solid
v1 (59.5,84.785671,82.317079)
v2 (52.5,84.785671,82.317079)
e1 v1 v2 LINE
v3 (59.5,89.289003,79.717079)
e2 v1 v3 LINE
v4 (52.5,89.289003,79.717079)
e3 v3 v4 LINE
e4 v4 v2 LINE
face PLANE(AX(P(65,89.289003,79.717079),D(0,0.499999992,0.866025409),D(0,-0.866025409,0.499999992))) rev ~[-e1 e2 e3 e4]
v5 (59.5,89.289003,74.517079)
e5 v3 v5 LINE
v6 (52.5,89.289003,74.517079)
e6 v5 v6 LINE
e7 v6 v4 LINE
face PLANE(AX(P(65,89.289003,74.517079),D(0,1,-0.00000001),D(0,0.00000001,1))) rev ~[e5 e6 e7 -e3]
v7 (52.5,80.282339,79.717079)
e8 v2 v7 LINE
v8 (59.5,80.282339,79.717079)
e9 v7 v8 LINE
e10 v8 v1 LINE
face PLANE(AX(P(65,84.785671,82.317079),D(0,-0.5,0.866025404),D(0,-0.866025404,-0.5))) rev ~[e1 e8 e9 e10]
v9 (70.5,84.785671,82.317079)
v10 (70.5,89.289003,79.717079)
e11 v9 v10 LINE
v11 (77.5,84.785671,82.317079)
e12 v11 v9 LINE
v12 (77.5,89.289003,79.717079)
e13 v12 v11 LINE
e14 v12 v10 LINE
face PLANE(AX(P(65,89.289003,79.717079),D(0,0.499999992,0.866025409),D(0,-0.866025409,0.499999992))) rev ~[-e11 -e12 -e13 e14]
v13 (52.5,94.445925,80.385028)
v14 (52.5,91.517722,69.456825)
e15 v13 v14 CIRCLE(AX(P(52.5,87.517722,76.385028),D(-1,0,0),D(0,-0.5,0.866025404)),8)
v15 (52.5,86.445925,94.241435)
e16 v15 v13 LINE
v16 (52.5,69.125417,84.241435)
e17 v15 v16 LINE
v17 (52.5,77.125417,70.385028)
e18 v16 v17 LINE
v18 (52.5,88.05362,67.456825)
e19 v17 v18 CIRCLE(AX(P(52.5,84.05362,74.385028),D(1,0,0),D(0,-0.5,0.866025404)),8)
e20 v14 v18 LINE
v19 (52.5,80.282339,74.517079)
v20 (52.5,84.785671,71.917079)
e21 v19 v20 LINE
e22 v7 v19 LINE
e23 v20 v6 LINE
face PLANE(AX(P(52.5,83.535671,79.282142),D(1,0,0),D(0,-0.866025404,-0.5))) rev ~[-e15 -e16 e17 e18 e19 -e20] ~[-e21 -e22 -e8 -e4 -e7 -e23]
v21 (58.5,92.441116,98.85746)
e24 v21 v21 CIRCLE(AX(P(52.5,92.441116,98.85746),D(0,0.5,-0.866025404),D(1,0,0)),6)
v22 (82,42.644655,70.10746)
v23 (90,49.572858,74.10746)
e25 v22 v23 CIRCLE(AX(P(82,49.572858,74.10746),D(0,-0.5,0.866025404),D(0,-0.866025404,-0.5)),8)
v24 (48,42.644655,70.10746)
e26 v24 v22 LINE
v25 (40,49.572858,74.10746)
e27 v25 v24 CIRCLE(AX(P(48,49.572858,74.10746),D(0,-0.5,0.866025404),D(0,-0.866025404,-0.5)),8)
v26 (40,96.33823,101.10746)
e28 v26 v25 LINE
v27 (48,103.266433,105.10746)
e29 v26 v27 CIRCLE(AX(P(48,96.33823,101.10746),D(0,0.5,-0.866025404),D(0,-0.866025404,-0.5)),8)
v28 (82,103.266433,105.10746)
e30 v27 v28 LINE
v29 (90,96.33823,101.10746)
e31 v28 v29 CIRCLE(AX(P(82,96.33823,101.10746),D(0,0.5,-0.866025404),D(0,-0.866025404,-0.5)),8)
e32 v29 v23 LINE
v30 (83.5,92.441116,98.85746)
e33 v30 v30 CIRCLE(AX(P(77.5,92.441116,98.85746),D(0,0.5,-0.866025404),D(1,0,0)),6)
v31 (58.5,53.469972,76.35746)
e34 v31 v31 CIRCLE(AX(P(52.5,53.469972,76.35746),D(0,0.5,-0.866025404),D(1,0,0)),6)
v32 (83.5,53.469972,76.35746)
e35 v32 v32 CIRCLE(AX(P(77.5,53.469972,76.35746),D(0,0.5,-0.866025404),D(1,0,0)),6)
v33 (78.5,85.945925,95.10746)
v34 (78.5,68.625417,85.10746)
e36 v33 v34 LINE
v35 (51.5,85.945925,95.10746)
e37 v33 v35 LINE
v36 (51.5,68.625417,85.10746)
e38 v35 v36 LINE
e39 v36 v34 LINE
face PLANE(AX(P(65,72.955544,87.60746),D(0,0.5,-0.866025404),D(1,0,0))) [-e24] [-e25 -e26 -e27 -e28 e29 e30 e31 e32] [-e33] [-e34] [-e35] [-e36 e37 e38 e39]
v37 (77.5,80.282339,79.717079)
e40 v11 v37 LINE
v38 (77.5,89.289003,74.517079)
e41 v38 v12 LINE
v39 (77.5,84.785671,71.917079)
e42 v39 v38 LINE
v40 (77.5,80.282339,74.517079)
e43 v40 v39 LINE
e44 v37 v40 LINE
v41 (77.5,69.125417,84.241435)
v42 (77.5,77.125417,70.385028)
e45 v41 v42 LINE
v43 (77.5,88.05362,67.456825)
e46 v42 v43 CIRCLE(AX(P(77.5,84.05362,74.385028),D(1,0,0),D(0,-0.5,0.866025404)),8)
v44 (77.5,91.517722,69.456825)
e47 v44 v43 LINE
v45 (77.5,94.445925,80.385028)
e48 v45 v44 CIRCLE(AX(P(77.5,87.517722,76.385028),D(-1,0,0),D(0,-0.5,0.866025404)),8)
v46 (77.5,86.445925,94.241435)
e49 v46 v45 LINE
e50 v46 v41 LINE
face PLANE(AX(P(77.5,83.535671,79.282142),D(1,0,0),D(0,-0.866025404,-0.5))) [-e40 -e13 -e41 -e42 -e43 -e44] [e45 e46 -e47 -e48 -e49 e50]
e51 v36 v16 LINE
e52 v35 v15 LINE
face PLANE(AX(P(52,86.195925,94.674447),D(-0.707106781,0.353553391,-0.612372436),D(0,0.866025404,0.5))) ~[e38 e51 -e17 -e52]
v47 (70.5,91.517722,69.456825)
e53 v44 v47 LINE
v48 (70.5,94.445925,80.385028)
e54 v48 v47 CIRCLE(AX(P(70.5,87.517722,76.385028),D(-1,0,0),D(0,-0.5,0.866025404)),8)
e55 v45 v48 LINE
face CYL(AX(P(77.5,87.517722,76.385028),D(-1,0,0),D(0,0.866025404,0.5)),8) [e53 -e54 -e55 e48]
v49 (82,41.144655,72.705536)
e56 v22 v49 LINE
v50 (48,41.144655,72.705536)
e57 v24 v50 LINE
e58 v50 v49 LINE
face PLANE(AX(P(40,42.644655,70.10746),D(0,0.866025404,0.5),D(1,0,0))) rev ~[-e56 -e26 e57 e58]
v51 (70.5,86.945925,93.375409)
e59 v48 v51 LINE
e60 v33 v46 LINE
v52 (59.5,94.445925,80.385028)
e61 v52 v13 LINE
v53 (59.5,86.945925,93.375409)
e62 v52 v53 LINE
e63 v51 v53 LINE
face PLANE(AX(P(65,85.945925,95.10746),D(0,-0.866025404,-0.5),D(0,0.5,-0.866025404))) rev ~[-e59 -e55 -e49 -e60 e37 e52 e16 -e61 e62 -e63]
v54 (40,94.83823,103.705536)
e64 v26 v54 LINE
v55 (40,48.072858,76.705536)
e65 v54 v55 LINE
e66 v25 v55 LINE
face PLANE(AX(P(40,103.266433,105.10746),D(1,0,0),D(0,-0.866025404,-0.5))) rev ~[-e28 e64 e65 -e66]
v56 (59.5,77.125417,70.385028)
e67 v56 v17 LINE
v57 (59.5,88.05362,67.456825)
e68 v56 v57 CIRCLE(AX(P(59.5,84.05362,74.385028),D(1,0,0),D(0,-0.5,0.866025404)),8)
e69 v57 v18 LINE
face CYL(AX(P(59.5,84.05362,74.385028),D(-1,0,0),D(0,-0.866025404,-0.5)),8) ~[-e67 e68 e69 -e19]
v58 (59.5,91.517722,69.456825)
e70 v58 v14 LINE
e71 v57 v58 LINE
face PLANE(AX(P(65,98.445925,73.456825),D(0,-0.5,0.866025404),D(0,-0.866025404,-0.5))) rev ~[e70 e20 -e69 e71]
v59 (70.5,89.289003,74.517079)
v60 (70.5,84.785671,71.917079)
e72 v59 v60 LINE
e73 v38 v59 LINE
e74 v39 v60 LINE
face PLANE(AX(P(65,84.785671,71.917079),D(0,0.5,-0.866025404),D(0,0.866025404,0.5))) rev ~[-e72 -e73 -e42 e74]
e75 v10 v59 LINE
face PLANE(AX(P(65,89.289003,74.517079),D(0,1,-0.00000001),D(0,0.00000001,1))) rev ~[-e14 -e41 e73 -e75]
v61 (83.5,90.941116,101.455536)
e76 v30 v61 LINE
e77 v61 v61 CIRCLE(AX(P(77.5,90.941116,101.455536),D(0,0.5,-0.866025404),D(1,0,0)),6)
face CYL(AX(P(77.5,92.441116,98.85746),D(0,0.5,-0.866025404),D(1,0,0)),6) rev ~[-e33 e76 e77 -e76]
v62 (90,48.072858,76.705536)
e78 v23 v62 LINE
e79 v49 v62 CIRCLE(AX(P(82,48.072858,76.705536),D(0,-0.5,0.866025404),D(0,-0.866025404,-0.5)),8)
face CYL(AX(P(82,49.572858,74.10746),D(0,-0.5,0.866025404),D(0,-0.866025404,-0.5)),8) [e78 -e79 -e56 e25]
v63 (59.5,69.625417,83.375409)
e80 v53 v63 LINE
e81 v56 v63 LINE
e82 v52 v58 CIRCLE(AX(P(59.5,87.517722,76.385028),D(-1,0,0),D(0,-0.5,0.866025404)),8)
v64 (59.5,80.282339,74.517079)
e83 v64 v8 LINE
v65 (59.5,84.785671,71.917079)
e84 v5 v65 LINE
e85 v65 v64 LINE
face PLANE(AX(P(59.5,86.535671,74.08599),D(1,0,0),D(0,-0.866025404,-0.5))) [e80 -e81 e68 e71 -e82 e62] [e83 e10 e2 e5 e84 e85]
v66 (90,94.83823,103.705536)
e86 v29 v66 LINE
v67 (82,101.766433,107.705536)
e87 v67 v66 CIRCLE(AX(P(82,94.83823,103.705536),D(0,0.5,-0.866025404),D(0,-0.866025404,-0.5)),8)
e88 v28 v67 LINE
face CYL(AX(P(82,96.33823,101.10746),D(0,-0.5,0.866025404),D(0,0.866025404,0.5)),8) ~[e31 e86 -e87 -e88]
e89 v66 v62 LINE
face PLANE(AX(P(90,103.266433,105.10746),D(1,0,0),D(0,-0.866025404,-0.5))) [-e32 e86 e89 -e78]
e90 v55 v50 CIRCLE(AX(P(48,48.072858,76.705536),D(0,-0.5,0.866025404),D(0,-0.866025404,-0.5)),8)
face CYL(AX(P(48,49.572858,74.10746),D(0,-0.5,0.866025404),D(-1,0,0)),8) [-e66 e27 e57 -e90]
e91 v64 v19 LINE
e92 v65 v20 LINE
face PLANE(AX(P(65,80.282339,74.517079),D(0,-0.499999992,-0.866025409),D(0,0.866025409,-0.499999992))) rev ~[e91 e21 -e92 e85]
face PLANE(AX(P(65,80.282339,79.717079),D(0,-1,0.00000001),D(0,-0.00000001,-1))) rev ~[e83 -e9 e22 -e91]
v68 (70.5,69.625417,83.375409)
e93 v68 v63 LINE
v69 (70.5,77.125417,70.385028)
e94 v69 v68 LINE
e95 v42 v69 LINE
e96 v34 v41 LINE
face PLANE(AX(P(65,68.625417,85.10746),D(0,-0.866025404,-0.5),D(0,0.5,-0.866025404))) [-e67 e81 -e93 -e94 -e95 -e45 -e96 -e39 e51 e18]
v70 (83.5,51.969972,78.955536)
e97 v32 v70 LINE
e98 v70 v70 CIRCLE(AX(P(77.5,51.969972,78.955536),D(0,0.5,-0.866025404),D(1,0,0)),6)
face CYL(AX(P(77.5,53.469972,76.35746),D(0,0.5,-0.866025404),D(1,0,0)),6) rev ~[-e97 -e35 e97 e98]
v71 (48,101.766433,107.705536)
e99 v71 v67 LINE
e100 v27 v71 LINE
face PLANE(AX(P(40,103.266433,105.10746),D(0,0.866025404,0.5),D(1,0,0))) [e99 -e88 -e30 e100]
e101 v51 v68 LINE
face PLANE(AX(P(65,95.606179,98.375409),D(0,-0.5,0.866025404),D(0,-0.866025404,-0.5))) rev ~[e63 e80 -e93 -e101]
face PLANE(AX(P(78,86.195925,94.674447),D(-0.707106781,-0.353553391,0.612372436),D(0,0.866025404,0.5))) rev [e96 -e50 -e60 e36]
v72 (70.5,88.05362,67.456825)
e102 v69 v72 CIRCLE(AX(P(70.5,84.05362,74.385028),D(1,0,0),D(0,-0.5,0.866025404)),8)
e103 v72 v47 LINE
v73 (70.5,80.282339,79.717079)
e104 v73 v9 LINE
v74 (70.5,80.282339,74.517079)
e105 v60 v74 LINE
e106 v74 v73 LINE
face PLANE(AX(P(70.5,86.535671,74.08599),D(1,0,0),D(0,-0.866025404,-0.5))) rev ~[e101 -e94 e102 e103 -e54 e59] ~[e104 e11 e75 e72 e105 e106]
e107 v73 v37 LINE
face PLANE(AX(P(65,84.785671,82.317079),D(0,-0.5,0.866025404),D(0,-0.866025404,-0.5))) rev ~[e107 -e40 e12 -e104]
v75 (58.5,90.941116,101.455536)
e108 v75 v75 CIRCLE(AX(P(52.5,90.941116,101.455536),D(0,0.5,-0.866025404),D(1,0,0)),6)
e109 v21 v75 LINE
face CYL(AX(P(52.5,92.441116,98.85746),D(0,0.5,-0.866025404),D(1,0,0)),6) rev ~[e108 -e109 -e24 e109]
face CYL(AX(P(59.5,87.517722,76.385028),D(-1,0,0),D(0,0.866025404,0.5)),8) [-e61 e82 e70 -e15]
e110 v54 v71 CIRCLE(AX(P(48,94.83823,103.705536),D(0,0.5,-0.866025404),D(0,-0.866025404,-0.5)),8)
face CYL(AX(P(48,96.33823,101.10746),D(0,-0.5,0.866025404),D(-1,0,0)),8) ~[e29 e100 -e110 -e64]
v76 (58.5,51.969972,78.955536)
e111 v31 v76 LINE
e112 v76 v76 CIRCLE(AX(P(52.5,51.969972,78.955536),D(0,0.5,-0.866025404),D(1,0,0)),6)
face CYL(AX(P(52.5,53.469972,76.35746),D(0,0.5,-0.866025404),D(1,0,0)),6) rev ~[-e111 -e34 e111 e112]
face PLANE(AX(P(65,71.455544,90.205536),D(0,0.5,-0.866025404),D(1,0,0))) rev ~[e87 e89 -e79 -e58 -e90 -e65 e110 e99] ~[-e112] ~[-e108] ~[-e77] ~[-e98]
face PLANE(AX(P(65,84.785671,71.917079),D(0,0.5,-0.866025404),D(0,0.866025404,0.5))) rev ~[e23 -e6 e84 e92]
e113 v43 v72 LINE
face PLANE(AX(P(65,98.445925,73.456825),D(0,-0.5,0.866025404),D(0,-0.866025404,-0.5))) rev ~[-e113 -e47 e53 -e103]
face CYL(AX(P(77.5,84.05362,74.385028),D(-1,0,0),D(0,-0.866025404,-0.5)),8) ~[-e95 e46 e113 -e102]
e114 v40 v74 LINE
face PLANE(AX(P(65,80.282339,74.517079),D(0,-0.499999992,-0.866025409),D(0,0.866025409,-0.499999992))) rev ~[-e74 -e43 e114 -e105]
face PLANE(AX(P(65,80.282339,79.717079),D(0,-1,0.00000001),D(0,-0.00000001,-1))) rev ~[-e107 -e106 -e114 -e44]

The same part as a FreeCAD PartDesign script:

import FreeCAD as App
import Part
import Sketcher
from FreeCAD import Vector
Q = App.Units.Quantity


def edges_at(feature, points):
    """Names of the edges that pass closest to the given points."""
    edges = feature.Shape.Edges
    near = lambda p: min(range(len(edges)), key=lambda i: edges[i].distToShape(Part.Vertex(*p))[0])
    return sorted({f"Edge{near(p) + 1}" for p in points})


def add_polygon(sketch, points):
    """Adds a closed chain of lines whose ends are joined by coincident constraints."""
    first, n = sketch.GeometryCount, len(points)
    for a, b in zip(points, points[1:] + points[:1]):
        sketch.addGeometry(Part.LineSegment(App.Vector(*a, 0), App.Vector(*b, 0)), False)
    for i in range(n):
        sketch.addConstraint(Sketcher.Constraint("Coincident", first + i, 2, first + (i + 1) % n, 1))

doc = App.newDocument("Part")
body = doc.addObject("PartDesign::Body", "Body")

# Sketch on XY plane
sketch1 = body.newObject("Sketcher::SketchObject", "Sketch")
sketch1.AttachmentSupport = (doc.getObject("XY_Plane"), [""])
sketch1.MapMode = "FlatFace"
add_polygon(sketch1, [(-25, 40), (-25, -30), (25, -30), (25, 40)])  # lines 0-3
sketch1.addGeometry(Part.Circle(Vector(-12, -18, 0), Vector(0, 0, 1), 6), False)  # 4
sketch1.addGeometry(Part.Circle(Vector(12, -18, 0), Vector(0, 0, 1), 6), False)  # 5
sketch1.addGeometry(Part.Circle(Vector(-12, 28, 0), Vector(0, 0, 1), 6), False)  # 6
sketch1.addGeometry(Part.Circle(Vector(12, 28, 0), Vector(0, 0, 1), 6), False)  # 7
sketch1.addConstraint([
    Sketcher.Constraint("Vertical", 0),
    Sketcher.Constraint("Horizontal", 1),
    Sketcher.Constraint("Vertical", 2),
    Sketcher.Constraint("Horizontal", 3),
    Sketcher.Constraint("Equal", 4, 5),
    Sketcher.Constraint("Equal", 5, 6),
    Sketcher.Constraint("Equal", 6, 7),
    Sketcher.Constraint("Symmetric", 4, 3, 5, 3, -2),
    Sketcher.Constraint("Symmetric", 6, 3, 7, 3, -2),
    Sketcher.Constraint("Vertical", 4, 3, 6, 3),
    Sketcher.Constraint("Diameter", 4, 12.0),
    Sketcher.Constraint("DistanceX", 1, 1, 1, 2, 50.0),
    Sketcher.Constraint("DistanceY", 0, 2, 0, 1, 70.0),
    Sketcher.Constraint("DistanceX", 0, 2, -1, 1, 25.0),
    Sketcher.Constraint("DistanceY", 0, 2, -1, 1, 30.0),
    Sketcher.Constraint("DistanceX", 4, 3, 5, 3, 25.0),
    Sketcher.Constraint("DistanceY", 4, 3, 6, 3, 45.0),
    Sketcher.Constraint("DistanceY", 4, 3, -1, 1, 17.5),
])
pad1 = body.newObject("PartDesign::Pad", "Pad")
pad1.Profile = sketch1
pad1.Length = 3
pad1.Reversed = True

# Sketch on YZ plane
sketch2 = body.newObject("Sketcher::SketchObject", "Sketch001")
sketch2.AttachmentSupport = (doc.getObject("YZ_Plane"), [""])
sketch2.MapMode = "FlatFace"
add_polygon(sketch2, [(-10, 25), (-10, 0), (10, 0), (10, 25)])  # lines 0-3
add_polygon(sketch2, [(5, 15), (3, 10), (-3, 10), (-5, 15), (-3, 20), (3, 20)])  # lines 4-9
sketch2.addConstraint([
    Sketcher.Constraint("Vertical", 0),
    Sketcher.Constraint("Horizontal", 1),
    Sketcher.Constraint("Vertical", 2),
    Sketcher.Constraint("Horizontal", 3),
    Sketcher.Constraint("Horizontal", 5),
    Sketcher.Constraint("Horizontal", 8),
    Sketcher.Constraint("Symmetric", 0, 2, 1, 2, -1, 1),
    Sketcher.Constraint("Symmetric", 6, 2, 9, 2, -2),
    Sketcher.Constraint("Parallel", 4, 7),
    Sketcher.Constraint("Parallel", 6, 9),
    Sketcher.Constraint("Vertical", 5, 2, 7, 2),
    Sketcher.Constraint("Vertical", 4, 2, 8, 2),
    Sketcher.Constraint("DistanceX", 1, 1, 1, 2, 20.0),
    Sketcher.Constraint("DistanceY", 0, 2, 0, 1, 25.0),
    Sketcher.Constraint("Angle", 4, Q("-120.000001 deg")),
    Sketcher.Constraint("DistanceX", 5, 2, 5, 1, 5.2),
    Sketcher.Constraint("DistanceY", -1, 1, 6, 2, 15.0),
    Sketcher.Constraint("Distance", 4, 5.2),
])
pad2 = body.newObject("PartDesign::Pad", "Pad001")
pad2.Profile = sketch2
pad2.Length = 25
pad2.Midplane = True

# Sketch on YZ plane
sketch3 = body.newObject("Sketcher::SketchObject", "Sketch002")
sketch3.AttachmentSupport = (doc.getObject("YZ_Plane"), [""])
sketch3.MapMode = "FlatFace"
add_polygon(sketch3, [(-20, 35), (-20, 2), (20, 2), (20, 35)])  # lines 0-3
sketch3.addConstraint([
    Sketcher.Constraint("Vertical", 0),
    Sketcher.Constraint("Horizontal", 1),
    Sketcher.Constraint("Vertical", 2),
    Sketcher.Constraint("Horizontal", 3),
    Sketcher.Constraint("DistanceX", 1, 1, 1, 2, 40.0),
    Sketcher.Constraint("DistanceY", 0, 2, 0, 1, 33.0),
    Sketcher.Constraint("DistanceX", 0, 2, -1, 1, 20.0),
    Sketcher.Constraint("DistanceY", -1, 1, 0, 2, 2.0),
])
pocket1 = body.newObject("PartDesign::Pocket", "Pocket")
pocket1.Profile = sketch3
pocket1.Length = 11
pocket1.Midplane = True
doc.recompute()

fillet = body.newObject("PartDesign::Fillet", "Fillet")
fillet.Base = (pocket1, edges_at(pocket1, [
    (-25, -30, -1.5),
    (-25, 40, -1.5),
    (25, 40, -1.5),
    (25, -30, -1.5),
    (-9, 10, 25),
    (9, 10, 25),
    (-9, -10, 25),
    (9, -10, 25),
]))
fillet.Radius = 8
doc.recompute()

chamfer = body.newObject("PartDesign::Chamfer", "Chamfer")
chamfer.Base = (fillet, edges_at(fillet, [(12.5, 0, 0), (-12.5, 0, 0)]))
chamfer.Size = 1
body2 = doc.addObject("PartDesign::Body", "Body001")
doc.recompute()

body.Placement = App.Placement(Vector(65, 77.285671, 90.10746), App.Rotation(Vector(1, 0, 0), 210))
boolean = body2.newObject("PartDesign::Boolean", "Boolean")
boolean.Type = "Fuse"
boolean.addObjects([body])

doc.recompute()
